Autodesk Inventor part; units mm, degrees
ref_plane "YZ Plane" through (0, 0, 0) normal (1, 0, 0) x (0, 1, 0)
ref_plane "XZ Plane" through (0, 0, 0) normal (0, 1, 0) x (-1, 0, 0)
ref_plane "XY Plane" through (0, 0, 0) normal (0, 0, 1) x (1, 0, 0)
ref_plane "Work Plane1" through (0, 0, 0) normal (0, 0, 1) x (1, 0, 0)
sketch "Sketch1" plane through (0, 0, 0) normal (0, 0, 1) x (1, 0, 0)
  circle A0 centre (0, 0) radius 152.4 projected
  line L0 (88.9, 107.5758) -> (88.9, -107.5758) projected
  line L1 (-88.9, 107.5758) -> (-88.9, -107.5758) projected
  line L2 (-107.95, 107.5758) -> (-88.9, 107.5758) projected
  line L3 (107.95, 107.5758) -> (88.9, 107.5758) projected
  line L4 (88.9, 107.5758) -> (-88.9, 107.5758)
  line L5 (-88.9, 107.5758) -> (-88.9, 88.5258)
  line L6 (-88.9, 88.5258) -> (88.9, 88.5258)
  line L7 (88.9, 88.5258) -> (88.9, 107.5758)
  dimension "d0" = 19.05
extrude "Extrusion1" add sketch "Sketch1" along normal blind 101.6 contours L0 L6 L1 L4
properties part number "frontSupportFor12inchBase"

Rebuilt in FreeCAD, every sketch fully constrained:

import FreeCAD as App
import Part
import Sketcher

V = App.Vector
Q = App.Units.Quantity


def add_polygon(sketch, points):
    """Adds a closed chain of lines whose ends are joined by coincident constraints."""
    first, n = sketch.GeometryCount, len(points)
    for a, b in zip(points, points[1:] + points[:1]):
        sketch.addGeometry(Part.LineSegment(App.Vector(*a, 0), App.Vector(*b, 0)), False)
    for i in range(n):
        sketch.addConstraint(Sketcher.Constraint("Coincident", first + i, 2, first + (i + 1) % n, 1))

doc = App.newDocument("Part")
body = doc.addObject("PartDesign::Body", "Body")

# Sketch on XY plane
sketch1 = body.newObject("Sketcher::SketchObject", "Sketch")
sketch1.AttachmentSupport = (doc.getObject("XY_Plane"), [""])
sketch1.MapMode = "FlatFace"
add_polygon(sketch1, [(89, 89), (89, 108), (-89, 108), (-89, 89)])  # lines 0-3
sketch1.addConstraint(Sketcher.Constraint("Vertical", 0))
sketch1.addConstraint(Sketcher.Constraint("Horizontal", 1))
sketch1.addConstraint(Sketcher.Constraint("Vertical", 2))
sketch1.addConstraint(Sketcher.Constraint("Horizontal", 3))
sketch1.addConstraint(Sketcher.Constraint("DistanceY", 0, 1, 0, 2, Q("0.75 in")))
sketch1.addConstraint(Sketcher.Constraint("DistanceX", 1, 2, 1, 1, Q("7 in")))
sketch1.addConstraint(Sketcher.Constraint("DistanceX", -1, 1, 0, 2, Q("3.5 in")))
sketch1.addConstraint(Sketcher.Constraint("DistanceY", -1, 1, 0, 2, Q("107.5758 mm")))
pad1 = body.newObject("PartDesign::Pad", "Pad")
pad1.Profile = sketch1
pad1.Length = Q("4 in")

doc.recompute()
